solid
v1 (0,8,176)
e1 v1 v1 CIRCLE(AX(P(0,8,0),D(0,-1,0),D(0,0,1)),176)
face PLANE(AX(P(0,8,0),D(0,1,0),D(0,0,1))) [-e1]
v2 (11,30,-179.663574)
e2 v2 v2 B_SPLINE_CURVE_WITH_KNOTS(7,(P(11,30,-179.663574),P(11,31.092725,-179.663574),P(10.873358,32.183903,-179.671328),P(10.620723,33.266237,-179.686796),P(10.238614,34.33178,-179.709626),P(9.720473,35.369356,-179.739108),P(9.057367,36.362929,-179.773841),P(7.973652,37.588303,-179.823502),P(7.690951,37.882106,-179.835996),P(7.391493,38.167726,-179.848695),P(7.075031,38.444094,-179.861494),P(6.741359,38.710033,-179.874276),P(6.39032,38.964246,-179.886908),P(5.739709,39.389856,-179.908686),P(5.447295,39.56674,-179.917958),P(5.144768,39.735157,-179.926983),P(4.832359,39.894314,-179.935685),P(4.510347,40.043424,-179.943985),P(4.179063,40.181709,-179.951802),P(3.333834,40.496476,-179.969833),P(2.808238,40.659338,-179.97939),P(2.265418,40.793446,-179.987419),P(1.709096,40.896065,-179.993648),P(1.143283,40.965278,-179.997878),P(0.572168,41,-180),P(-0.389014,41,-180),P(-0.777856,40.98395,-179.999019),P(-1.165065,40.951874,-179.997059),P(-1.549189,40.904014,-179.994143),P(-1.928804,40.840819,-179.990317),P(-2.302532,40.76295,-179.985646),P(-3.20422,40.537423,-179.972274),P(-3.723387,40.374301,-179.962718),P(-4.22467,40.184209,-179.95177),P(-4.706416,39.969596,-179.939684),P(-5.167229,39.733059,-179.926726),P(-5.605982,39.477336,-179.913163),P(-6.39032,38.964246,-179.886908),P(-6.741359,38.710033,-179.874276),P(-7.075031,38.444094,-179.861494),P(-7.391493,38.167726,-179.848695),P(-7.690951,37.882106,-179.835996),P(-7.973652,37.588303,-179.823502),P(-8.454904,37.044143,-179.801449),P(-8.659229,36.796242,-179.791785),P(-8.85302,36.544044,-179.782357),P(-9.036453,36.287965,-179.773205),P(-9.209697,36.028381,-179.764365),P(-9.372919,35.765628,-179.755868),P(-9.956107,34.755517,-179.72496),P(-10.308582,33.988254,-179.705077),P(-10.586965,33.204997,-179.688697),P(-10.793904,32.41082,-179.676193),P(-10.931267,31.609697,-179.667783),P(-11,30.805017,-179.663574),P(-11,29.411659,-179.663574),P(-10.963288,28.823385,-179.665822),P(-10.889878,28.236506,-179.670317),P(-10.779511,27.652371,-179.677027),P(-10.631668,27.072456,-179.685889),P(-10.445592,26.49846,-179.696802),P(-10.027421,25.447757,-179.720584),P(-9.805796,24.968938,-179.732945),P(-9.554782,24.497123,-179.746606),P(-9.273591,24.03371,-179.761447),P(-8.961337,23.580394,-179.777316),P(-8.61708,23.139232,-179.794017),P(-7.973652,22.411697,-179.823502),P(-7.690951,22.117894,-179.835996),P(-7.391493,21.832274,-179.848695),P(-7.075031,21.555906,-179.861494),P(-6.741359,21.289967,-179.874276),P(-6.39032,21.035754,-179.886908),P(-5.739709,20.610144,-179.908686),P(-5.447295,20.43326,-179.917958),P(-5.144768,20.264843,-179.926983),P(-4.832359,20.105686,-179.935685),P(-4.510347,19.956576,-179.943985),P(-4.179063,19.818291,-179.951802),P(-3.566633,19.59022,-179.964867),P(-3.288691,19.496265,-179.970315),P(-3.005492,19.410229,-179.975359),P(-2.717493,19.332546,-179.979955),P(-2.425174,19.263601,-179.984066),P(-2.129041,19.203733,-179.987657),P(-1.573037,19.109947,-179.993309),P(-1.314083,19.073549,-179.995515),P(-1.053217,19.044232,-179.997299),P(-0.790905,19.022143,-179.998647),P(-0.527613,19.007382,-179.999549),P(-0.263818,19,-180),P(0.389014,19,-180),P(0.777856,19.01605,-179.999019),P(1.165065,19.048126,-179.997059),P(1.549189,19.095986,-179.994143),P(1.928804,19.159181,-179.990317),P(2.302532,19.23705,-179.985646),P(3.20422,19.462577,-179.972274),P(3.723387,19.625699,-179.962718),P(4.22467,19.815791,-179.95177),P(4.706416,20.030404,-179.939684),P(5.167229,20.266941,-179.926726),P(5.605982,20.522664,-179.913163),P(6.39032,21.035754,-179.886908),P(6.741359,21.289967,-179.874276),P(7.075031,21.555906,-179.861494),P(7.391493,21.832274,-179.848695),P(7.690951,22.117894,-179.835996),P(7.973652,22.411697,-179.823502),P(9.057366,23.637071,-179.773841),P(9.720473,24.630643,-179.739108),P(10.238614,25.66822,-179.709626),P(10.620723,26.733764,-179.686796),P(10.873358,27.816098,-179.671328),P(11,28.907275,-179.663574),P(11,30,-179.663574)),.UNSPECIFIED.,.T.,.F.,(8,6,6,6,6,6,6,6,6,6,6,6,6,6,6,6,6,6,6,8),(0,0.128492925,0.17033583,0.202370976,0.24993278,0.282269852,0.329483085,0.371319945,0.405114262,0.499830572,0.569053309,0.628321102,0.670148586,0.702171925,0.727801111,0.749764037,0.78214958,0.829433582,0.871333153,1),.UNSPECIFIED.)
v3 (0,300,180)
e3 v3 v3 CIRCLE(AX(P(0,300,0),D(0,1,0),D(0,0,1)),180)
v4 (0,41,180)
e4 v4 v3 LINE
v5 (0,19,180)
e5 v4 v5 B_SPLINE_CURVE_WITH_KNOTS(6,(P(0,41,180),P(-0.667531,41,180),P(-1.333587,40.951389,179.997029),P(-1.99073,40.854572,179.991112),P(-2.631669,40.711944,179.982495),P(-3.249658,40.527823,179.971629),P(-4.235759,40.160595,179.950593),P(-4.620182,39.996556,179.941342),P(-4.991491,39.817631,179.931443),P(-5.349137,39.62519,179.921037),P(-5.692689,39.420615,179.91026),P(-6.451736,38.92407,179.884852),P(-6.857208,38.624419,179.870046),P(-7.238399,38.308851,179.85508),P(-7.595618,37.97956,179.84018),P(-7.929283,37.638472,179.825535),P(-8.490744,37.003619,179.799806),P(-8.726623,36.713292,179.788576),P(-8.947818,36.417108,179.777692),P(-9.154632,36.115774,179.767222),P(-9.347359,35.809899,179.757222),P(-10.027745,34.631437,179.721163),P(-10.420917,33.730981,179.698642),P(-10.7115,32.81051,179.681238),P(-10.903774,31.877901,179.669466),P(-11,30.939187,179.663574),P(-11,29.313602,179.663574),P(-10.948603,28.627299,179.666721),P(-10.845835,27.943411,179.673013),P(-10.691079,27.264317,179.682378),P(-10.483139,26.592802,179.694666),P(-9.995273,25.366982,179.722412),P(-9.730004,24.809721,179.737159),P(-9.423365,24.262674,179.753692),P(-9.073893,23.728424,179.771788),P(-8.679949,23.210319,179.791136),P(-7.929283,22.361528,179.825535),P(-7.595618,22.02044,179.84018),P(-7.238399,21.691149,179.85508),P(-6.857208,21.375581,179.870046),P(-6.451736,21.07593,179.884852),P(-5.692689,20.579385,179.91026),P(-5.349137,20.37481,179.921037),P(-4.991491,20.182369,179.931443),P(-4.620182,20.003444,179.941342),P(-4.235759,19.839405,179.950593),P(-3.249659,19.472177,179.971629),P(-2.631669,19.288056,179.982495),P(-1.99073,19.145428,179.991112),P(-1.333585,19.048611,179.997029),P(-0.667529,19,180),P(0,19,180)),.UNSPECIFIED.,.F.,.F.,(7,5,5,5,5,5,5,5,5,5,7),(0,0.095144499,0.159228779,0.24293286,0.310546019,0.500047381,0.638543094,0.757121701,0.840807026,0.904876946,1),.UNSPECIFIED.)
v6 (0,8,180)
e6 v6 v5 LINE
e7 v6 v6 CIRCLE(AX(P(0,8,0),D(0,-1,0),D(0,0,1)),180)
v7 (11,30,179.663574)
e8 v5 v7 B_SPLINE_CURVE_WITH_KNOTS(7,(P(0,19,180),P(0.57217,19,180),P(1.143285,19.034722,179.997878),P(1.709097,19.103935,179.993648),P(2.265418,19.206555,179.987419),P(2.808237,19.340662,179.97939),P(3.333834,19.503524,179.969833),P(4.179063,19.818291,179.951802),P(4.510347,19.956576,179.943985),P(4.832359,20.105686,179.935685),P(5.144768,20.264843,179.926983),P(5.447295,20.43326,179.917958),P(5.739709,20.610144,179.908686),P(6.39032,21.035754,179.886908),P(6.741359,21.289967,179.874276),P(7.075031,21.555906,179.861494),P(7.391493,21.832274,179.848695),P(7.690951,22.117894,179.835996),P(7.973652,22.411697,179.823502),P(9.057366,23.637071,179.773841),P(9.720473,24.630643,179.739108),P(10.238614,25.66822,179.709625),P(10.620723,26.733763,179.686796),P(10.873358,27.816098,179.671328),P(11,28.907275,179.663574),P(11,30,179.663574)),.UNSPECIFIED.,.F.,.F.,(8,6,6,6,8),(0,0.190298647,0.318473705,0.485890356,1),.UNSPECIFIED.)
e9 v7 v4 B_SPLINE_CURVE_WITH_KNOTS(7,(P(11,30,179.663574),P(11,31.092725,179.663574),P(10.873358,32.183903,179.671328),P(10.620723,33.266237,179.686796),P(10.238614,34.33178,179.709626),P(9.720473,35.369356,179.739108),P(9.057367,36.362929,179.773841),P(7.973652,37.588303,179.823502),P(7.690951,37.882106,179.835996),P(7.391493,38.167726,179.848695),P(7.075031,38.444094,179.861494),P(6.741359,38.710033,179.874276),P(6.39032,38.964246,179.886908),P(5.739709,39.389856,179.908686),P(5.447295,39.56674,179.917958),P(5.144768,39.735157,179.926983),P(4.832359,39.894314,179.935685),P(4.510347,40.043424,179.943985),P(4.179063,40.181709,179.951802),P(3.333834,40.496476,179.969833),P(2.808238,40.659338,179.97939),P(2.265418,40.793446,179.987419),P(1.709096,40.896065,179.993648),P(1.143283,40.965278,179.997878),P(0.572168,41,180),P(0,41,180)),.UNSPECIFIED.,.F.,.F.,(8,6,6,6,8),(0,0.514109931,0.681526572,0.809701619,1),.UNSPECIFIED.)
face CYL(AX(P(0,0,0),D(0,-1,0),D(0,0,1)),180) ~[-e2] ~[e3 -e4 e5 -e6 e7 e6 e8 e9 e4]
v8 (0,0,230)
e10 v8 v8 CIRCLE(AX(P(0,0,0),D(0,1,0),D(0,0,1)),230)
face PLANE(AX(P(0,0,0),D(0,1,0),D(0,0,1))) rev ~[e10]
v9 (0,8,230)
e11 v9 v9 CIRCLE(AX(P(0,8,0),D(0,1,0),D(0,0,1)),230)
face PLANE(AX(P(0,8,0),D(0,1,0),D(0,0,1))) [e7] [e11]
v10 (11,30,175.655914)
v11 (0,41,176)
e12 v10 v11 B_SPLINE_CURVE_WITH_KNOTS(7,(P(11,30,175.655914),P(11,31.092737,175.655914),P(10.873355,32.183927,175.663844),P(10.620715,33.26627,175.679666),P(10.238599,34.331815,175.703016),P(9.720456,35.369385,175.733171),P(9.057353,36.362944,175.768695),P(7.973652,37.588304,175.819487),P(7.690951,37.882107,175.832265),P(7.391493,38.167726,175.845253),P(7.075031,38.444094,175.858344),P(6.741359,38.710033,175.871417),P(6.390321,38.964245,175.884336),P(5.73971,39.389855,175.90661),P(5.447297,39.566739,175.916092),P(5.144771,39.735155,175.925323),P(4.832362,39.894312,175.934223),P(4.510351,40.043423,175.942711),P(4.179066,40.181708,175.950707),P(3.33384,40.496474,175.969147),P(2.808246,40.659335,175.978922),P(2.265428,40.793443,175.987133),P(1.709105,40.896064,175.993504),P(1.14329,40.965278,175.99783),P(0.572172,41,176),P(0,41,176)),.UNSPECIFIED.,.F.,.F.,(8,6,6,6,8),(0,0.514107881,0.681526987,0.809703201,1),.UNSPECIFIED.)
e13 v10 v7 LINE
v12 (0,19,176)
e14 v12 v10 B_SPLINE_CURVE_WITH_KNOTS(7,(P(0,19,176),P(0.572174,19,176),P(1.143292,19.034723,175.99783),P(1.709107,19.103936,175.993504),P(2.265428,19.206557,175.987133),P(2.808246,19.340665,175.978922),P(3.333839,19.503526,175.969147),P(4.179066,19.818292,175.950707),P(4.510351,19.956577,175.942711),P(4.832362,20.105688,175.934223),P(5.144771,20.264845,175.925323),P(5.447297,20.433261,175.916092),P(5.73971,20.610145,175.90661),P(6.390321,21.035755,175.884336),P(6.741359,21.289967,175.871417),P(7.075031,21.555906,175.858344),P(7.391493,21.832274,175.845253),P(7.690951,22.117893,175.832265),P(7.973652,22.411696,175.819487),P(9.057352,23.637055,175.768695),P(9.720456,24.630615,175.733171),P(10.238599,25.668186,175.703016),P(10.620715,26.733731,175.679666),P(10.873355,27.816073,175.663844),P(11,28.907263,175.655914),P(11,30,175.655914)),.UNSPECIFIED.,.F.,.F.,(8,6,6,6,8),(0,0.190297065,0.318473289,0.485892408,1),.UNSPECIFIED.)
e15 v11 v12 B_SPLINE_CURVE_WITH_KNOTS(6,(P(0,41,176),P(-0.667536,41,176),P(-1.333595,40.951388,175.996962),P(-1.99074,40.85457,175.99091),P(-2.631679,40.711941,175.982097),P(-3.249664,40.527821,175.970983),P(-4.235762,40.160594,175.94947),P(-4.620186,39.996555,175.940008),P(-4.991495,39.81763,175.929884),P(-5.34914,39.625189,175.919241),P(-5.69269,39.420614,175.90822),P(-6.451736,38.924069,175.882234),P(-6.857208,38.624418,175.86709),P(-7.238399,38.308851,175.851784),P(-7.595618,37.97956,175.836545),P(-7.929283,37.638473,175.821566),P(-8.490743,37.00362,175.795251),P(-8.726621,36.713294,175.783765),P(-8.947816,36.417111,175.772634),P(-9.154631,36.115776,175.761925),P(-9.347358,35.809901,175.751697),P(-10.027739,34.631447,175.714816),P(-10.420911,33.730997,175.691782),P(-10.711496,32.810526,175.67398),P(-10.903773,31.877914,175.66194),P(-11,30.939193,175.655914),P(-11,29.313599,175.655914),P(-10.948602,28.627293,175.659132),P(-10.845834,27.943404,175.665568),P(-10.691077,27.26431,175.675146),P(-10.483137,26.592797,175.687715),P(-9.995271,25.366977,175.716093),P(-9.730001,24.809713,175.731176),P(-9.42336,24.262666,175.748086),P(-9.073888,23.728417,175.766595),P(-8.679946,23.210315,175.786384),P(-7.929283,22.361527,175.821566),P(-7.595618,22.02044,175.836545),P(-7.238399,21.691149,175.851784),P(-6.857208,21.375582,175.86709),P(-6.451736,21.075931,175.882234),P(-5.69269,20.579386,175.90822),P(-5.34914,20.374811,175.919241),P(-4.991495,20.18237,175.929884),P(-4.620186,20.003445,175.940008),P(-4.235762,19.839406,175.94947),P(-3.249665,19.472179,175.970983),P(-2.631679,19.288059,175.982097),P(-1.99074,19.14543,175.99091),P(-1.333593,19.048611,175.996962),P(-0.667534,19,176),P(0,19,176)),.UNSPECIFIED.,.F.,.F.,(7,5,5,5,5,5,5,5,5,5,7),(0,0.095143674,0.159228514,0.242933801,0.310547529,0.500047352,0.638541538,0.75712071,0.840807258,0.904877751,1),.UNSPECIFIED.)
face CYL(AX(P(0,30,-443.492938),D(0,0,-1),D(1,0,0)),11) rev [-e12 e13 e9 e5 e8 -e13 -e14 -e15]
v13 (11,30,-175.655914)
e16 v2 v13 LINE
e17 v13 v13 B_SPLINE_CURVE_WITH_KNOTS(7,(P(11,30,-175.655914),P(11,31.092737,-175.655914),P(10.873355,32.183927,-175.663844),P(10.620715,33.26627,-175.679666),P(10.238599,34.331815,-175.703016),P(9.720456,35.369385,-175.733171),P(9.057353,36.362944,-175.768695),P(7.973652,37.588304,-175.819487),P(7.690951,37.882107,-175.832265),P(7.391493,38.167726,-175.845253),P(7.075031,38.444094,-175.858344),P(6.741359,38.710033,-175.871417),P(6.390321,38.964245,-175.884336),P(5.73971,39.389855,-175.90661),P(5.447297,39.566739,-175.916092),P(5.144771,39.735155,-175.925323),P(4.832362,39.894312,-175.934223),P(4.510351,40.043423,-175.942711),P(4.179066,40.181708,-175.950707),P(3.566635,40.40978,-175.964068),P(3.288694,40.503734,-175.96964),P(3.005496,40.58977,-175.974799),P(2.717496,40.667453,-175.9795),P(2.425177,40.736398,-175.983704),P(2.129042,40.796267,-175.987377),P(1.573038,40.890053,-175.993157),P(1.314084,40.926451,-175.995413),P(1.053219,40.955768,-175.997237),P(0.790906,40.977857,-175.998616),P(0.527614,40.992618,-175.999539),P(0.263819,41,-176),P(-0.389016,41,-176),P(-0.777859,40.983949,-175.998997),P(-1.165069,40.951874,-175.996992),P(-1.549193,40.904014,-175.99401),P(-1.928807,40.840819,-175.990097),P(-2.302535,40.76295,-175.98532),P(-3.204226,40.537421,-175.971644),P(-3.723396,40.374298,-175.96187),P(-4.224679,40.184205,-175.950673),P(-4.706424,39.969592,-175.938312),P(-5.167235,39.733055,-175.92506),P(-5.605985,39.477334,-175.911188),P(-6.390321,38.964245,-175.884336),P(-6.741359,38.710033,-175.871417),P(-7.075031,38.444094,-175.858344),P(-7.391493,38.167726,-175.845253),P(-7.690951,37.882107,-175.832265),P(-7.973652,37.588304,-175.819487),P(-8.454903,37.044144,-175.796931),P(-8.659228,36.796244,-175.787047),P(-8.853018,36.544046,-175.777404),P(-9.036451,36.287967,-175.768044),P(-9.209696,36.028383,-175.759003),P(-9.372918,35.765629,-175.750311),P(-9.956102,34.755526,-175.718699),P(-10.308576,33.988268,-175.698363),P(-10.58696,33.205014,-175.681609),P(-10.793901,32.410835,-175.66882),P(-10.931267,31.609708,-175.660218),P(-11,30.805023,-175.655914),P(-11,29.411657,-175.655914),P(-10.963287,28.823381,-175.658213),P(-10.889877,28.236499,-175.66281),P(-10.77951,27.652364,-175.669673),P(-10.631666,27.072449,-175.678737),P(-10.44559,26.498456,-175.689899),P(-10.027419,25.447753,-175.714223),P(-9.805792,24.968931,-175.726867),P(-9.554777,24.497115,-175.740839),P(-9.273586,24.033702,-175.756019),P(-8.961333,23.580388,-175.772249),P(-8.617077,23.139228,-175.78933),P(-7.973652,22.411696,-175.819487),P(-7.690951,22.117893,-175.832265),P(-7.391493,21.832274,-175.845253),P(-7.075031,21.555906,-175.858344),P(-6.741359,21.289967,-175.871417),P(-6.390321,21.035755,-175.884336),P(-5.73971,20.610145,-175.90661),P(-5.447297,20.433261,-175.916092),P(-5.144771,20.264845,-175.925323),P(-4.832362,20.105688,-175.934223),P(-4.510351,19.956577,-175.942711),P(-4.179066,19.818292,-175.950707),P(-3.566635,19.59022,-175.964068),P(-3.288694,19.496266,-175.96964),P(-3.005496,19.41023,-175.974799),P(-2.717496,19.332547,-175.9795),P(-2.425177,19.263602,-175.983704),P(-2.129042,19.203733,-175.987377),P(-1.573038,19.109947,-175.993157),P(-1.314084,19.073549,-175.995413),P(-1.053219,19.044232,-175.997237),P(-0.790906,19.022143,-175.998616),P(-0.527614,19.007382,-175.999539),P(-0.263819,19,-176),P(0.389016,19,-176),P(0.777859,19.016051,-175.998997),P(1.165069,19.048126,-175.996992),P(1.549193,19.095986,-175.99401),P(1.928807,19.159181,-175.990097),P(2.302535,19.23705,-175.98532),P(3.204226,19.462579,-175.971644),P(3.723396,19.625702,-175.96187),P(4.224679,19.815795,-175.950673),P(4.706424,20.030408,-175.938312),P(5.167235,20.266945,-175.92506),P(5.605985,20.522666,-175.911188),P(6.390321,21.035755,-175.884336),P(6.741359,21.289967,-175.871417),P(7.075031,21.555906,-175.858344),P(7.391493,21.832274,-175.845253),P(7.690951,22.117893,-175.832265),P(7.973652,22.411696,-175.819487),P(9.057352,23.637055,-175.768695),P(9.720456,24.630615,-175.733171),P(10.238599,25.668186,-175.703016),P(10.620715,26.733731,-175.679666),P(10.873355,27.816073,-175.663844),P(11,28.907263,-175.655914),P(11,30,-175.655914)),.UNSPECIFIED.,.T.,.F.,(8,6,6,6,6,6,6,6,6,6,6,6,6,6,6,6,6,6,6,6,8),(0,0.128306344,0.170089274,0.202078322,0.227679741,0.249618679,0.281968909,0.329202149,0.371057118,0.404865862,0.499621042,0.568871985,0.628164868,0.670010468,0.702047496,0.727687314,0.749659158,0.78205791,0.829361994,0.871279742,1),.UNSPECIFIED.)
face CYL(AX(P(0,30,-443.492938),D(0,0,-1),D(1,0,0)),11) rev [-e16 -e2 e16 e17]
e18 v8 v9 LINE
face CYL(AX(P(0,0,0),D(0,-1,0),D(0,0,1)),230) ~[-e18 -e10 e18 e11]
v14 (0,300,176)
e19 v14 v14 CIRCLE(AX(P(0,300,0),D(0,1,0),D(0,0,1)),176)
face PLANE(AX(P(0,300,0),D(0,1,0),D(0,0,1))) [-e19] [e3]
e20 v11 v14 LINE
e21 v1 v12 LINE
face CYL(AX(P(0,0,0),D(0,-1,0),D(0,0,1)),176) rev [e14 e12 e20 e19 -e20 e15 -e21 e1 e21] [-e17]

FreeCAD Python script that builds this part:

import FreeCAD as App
import Part
import Sketcher

V = App.Vector

doc = App.newDocument("Part")
body = doc.addObject("PartDesign::Body", "Body")

sketch1 = body.newObject("Sketcher::SketchObject", "Sketch")
sketch1.AttachmentSupport = (doc.getObject("XZ_Plane"), [""])
sketch1.MapMode = "FlatFace"
sketch1.addGeometry(Part.Circle(V(0, 0, 0), V(0, 0, 1), 230), False)
sketch1.addConstraint([
    Sketcher.Constraint("Coincident", 0, 3, -1, 1),
    Sketcher.Constraint("Diameter", 0, 460.0),
])
pad1 = body.newObject("PartDesign::Pad", "Pad")
pad1.Profile = sketch1
pad1.Length = 8
pad1.Reversed = True

sketch2 = body.newObject("Sketcher::SketchObject", "Sketch001")
sketch2.AttachmentSupport = (doc.getObject("XZ_Plane"), [""])
sketch2.MapMode = "FlatFace"
sketch2.addGeometry([
    Part.Circle(V(0, 0, 0), V(0, 0, 1), 180),
    Part.Circle(V(0, 0, 0), V(0, 0, 1), 176),
], False)
sketch2.addConstraint([
    Sketcher.Constraint("Coincident", 0, 3, -1, 1),
    Sketcher.Constraint("Coincident", 1, 3, -1, 1),
    Sketcher.Constraint("Diameter", 0, 360.0),
    Sketcher.Constraint("Diameter", 1, 352.0),
])
pad2 = body.newObject("PartDesign::Pad", "Pad001")
pad2.Profile = sketch2
pad2.Length = 300
pad2.Reversed = True

sketch3 = body.newObject("Sketcher::SketchObject", "Sketch002")
sketch3.AttachmentSupport = (doc.getObject("XY_Plane"), [""])
sketch3.MapMode = "FlatFace"
sketch3.addGeometry(Part.Circle(V(0, 30, 0), V(0, 0, 1), 11), False)
sketch3.addConstraint([
    Sketcher.Constraint("PointOnObject", 0, 3, -2),
    Sketcher.Constraint("Diameter", 0, 22.0),
    Sketcher.Constraint("DistanceY", -1, 1, 0, 3, 30.0),
])
pocket1 = body.newObject("PartDesign::Pocket", "Pocket")
pocket1.Profile = sketch3
pocket1.Type = "ThroughAll"
pocket1.Midplane = True

doc.recompute()
